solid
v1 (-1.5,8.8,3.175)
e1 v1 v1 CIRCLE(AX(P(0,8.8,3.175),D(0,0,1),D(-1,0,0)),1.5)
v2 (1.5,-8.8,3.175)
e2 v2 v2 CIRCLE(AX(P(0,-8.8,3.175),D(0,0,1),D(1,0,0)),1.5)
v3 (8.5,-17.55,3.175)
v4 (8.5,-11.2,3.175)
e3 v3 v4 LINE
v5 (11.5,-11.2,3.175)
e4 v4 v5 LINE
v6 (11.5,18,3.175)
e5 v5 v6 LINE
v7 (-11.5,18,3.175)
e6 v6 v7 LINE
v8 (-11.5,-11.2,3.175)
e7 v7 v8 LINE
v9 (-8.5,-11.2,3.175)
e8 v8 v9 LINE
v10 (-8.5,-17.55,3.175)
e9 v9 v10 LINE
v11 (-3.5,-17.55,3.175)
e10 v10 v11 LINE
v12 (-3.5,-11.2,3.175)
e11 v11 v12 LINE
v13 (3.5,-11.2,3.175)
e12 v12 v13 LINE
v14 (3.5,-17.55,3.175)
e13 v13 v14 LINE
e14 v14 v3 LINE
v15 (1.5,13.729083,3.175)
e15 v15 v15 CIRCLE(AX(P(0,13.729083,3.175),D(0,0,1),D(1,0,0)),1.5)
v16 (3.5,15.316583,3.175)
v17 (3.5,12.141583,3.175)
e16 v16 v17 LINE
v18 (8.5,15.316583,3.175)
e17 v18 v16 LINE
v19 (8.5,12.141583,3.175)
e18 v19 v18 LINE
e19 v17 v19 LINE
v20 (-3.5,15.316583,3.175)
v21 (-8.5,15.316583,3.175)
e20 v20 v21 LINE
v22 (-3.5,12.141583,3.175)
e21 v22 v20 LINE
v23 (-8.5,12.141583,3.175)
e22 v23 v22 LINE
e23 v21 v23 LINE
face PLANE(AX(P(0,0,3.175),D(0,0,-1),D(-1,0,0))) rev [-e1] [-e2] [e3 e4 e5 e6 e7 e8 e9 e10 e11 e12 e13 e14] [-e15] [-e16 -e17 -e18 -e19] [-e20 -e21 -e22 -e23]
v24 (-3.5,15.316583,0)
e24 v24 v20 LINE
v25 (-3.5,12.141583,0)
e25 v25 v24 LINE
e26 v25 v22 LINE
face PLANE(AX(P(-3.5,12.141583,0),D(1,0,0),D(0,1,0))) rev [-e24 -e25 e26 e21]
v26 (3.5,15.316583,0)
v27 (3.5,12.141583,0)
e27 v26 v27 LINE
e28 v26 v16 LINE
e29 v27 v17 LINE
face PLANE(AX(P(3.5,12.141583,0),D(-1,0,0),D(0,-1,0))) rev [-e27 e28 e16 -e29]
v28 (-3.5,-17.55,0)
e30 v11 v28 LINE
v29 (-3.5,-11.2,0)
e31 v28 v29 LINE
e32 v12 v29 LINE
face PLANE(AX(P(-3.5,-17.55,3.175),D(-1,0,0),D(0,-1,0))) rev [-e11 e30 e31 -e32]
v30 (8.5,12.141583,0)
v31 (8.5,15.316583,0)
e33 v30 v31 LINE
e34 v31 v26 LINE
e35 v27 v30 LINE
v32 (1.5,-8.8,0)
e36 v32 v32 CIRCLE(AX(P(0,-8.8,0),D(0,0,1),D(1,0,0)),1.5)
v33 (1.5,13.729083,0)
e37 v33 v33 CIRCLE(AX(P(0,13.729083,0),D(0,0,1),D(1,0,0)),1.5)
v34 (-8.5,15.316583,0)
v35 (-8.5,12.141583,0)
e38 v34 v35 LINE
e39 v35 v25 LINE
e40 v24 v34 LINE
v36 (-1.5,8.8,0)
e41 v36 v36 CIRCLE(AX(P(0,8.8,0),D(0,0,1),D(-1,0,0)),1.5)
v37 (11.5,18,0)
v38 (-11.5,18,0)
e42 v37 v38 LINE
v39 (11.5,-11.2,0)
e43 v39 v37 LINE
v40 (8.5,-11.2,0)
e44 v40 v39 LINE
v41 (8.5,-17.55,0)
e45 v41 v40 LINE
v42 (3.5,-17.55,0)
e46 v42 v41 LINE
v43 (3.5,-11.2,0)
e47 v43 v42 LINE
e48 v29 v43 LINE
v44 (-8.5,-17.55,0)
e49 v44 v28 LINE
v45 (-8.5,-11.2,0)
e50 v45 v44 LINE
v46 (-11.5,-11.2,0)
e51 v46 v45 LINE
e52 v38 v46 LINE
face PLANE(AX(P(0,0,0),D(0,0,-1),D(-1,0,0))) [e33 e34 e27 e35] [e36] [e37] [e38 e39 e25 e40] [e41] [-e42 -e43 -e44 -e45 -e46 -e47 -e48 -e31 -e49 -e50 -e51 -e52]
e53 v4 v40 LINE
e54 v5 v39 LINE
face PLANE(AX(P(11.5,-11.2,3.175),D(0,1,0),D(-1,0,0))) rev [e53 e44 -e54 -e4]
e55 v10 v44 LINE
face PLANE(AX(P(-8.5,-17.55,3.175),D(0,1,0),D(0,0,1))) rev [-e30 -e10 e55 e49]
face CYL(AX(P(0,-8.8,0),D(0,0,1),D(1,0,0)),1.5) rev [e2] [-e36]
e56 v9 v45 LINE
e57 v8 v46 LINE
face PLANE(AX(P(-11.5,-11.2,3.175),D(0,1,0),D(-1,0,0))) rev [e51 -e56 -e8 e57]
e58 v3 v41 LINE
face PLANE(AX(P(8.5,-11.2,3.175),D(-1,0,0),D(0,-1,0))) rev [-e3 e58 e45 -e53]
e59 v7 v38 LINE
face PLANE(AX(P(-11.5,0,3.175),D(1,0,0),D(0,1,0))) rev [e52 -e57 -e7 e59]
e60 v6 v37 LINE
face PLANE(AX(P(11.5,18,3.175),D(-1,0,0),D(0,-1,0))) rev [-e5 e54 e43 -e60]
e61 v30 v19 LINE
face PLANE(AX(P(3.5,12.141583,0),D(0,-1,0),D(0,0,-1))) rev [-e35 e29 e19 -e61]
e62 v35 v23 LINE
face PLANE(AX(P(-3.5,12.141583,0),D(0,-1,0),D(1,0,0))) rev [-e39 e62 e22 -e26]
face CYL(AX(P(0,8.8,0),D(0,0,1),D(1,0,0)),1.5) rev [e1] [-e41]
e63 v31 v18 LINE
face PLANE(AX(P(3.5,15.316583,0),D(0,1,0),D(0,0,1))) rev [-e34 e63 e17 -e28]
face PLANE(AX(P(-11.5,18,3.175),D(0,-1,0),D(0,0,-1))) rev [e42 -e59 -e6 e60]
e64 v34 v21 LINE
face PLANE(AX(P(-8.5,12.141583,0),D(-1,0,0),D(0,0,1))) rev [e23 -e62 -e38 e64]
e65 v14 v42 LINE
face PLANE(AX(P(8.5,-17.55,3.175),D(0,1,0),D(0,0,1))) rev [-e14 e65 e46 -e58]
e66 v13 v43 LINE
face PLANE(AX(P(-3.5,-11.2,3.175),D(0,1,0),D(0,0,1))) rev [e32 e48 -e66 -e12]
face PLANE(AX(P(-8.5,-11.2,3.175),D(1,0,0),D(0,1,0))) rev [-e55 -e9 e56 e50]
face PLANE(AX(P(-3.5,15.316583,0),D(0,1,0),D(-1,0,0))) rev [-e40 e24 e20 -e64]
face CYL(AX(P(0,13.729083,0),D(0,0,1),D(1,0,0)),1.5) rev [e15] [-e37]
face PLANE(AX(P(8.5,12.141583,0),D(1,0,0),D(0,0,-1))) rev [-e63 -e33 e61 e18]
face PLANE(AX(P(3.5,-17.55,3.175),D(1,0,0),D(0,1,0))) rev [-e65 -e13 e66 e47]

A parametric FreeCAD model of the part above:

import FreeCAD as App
import Part
import Sketcher

V = App.Vector
Q = App.Units.Quantity

doc = App.newDocument("Part")
body = doc.addObject("PartDesign::Body", "Body")

sketch1 = body.newObject("Sketcher::SketchObject", "Sketch")
sketch1.AttachmentSupport = (doc.getObject("XY_Plane"), [""])
sketch1.MapMode = "FlatFace"
sketch1.addGeometry(Part.LineSegment(V(-11.5, -11.2, 0), V(-8.5, -11.2, 0)), False)
sketch1.addGeometry(Part.LineSegment(V(-8.5, -11.2, 0), V(-8.5, -17.55, 0)), False)
sketch1.addGeometry(Part.LineSegment(V(-8.5, -17.55, 0), V(-3.5, -17.55, 0)), False)
sketch1.addGeometry(Part.LineSegment(V(-3.5, -17.55, 0), V(-3.5, -11.2, 0)), False)
sketch1.addGeometry(Part.LineSegment(V(-3.5, -11.2, 0), V(3.5, -11.2, 0)), False)
sketch1.addGeometry(Part.LineSegment(V(3.5, -11.2, 0), V(3.5, -17.55, 0)), False)
sketch1.addGeometry(Part.LineSegment(V(3.5, -17.55, 0), V(8.5, -17.55, 0)), False)
sketch1.addGeometry(Part.LineSegment(V(8.5, -17.55, 0), V(8.5, -11.2, 0)), False)
sketch1.addGeometry(Part.LineSegment(V(8.5, -11.2, 0), V(11.5, -11.2, 0)), False)
sketch1.addGeometry(Part.LineSegment(V(11.5, -11.2, 0), V(11.5, 18, 0)), False)
sketch1.addGeometry(Part.LineSegment(V(11.5, 18, 0), V(-11.5, 18, 0)), False)
sketch1.addGeometry(Part.LineSegment(V(-11.5, 18, 0), V(-11.5, -11.2, 0)), False)
sketch1.addConstraint(Sketcher.Constraint("Coincident", 0, 2, 1, 1))
sketch1.addConstraint(Sketcher.Constraint("Coincident", 1, 2, 2, 1))
sketch1.addConstraint(Sketcher.Constraint("Coincident", 2, 2, 3, 1))
sketch1.addConstraint(Sketcher.Constraint("Coincident", 3, 2, 4, 1))
sketch1.addConstraint(Sketcher.Constraint("Coincident", 4, 2, 5, 1))
sketch1.addConstraint(Sketcher.Constraint("Coincident", 5, 2, 6, 1))
sketch1.addConstraint(Sketcher.Constraint("Coincident", 6, 2, 7, 1))
sketch1.addConstraint(Sketcher.Constraint("Coincident", 7, 2, 8, 1))
sketch1.addConstraint(Sketcher.Constraint("Coincident", 8, 2, 9, 1))
sketch1.addConstraint(Sketcher.Constraint("Coincident", 9, 2, 10, 1))
sketch1.addConstraint(Sketcher.Constraint("Coincident", 10, 2, 11, 1))
sketch1.addConstraint(Sketcher.Constraint("Coincident", 11, 2, 0, 1))
sketch1.addConstraint(Sketcher.Constraint("Horizontal", 0))
sketch1.addConstraint(Sketcher.Constraint("Vertical", 1))
sketch1.addConstraint(Sketcher.Constraint("Horizontal", 2))
sketch1.addConstraint(Sketcher.Constraint("Vertical", 3))
sketch1.addConstraint(Sketcher.Constraint("Horizontal", 4))
sketch1.addConstraint(Sketcher.Constraint("Vertical", 5))
sketch1.addConstraint(Sketcher.Constraint("Horizontal", 6))
sketch1.addConstraint(Sketcher.Constraint("Vertical", 7))
sketch1.addConstraint(Sketcher.Constraint("Horizontal", 8))
sketch1.addConstraint(Sketcher.Constraint("Vertical", 9))
sketch1.addConstraint(Sketcher.Constraint("Horizontal", 10))
sketch1.addConstraint(Sketcher.Constraint("Vertical", 11))
sketch1.addConstraint(Sketcher.Constraint("Symmetric", 2, 2, 5, 2, -2))
sketch1.addConstraint(Sketcher.Constraint("Symmetric", 0, 2, 7, 2, -2))
sketch1.addConstraint(Sketcher.Constraint("Horizontal", 0, 2, 3, 2))
sketch1.addConstraint(Sketcher.Constraint("Equal", 0, 8))
sketch1.addConstraint(Sketcher.Constraint("DistanceX", 0, 1, 0, 2, Q("3 mm")))
sketch1.addConstraint(Sketcher.Constraint("DistanceX", 2, 1, 2, 2, Q("5 mm")))
sketch1.addConstraint(Sketcher.Constraint("DistanceX", 4, 1, 4, 2, Q("7 mm")))
sketch1.addConstraint(Sketcher.Constraint("DistanceY", 9, 1, 9, 2, Q("29.2 mm")))
sketch1.addConstraint(Sketcher.Constraint("DistanceY", -1, 1, 9, 2, Q("18 mm")))
sketch1.addConstraint(Sketcher.Constraint("DistanceY", 1, 2, 1, 1, Q("6.35 mm")))
pad1 = body.newObject("PartDesign::Pad", "Pad")
pad1.Profile = sketch1
pad1.Length = 3.175

sketch2 = body.newObject("Sketcher::SketchObject", "Sketch001")
sketch2.AttachmentSupport = (doc.getObject("XY_Plane"), [""])
sketch2.MapMode = "FlatFace"
sketch2.AttachmentOffset = App.Placement(V(0, 0, 3.175), App.Rotation())
sketch2.addGeometry(Part.Circle(V(0, -8.8, 0), V(0, 0, 1), 1.5), False)
sketch2.addGeometry(Part.Circle(V(0, 8.8, 0), V(0, 0, 1), 1.5), False)
sketch2.addConstraint(Sketcher.Constraint("Equal", 0, 1))
sketch2.addConstraint(Sketcher.Constraint("Symmetric", 0, 3, 1, 3, -1, 1))
sketch2.addConstraint(Sketcher.Constraint("PointOnObject", 0, 3, -2))
sketch2.addConstraint(Sketcher.Constraint("Diameter", 0, Q("3 mm")))
sketch2.addConstraint(Sketcher.Constraint("DistanceY", 0, 3, -1, 1, Q("8.8 mm")))
pocket1 = body.newObject("PartDesign::Pocket", "Pocket")
pocket1.Profile = sketch2
pocket1.Type = "ThroughAll"

sketch3 = body.newObject("Sketcher::SketchObject", "Sketch002")
sketch3.AttachmentSupport = (doc.getObject("XY_Plane"), [""])
sketch3.MapMode = "FlatFace"
sketch3.AttachmentOffset = App.Placement(V(0, 0, 3.175), App.Rotation())
sketch3.addGeometry(Part.Circle(V(0, 13.729083, 0), V(0, 0, 1), 1.5), False)
sketch3.addGeometry(Part.LineSegment(V(3.5, 15.316583, 0), V(3.5, 12.141583, 0)), False)
sketch3.addGeometry(Part.LineSegment(V(3.5, 12.141583, 0), V(8.5, 12.141583, 0)), False)
sketch3.addGeometry(Part.LineSegment(V(8.5, 12.141583, 0), V(8.5, 15.316583, 0)), False)
sketch3.addGeometry(Part.LineSegment(V(8.5, 15.316583, 0), V(3.5, 15.316583, 0)), False)
sketch3.addGeometry(Part.LineSegment(V(-8.5, 15.316583, 0), V(-8.5, 12.141583, 0)), False)
sketch3.addGeometry(Part.LineSegment(V(-8.5, 12.141583, 0), V(-3.5, 12.141583, 0)), False)
sketch3.addGeometry(Part.LineSegment(V(-3.5, 12.141583, 0), V(-3.5, 15.316583, 0)), False)
sketch3.addGeometry(Part.LineSegment(V(-3.5, 15.316583, 0), V(-8.5, 15.316583, 0)), False)
sketch3.addConstraint(Sketcher.Constraint("Coincident", 1, 2, 2, 1))
sketch3.addConstraint(Sketcher.Constraint("Coincident", 2, 2, 3, 1))
sketch3.addConstraint(Sketcher.Constraint("Coincident", 3, 2, 4, 1))
sketch3.addConstraint(Sketcher.Constraint("Coincident", 4, 2, 1, 1))
sketch3.addConstraint(Sketcher.Constraint("Coincident", 5, 2, 6, 1))
sketch3.addConstraint(Sketcher.Constraint("Coincident", 6, 2, 7, 1))
sketch3.addConstraint(Sketcher.Constraint("Coincident", 7, 2, 8, 1))
sketch3.addConstraint(Sketcher.Constraint("Coincident", 8, 2, 5, 1))
sketch3.addConstraint(Sketcher.Constraint("Vertical", 1))
sketch3.addConstraint(Sketcher.Constraint("Horizontal", 2))
sketch3.addConstraint(Sketcher.Constraint("Vertical", 3))
sketch3.addConstraint(Sketcher.Constraint("Horizontal", 4))
sketch3.addConstraint(Sketcher.Constraint("Vertical", 5))
sketch3.addConstraint(Sketcher.Constraint("Horizontal", 6))
sketch3.addConstraint(Sketcher.Constraint("Vertical", 7))
sketch3.addConstraint(Sketcher.Constraint("Horizontal", 8))
sketch3.addConstraint(Sketcher.Constraint("Symmetric", 2, 2, 5, 2, -2))
sketch3.addConstraint(Sketcher.Constraint("Symmetric", 4, 2, 7, 2, -2))
sketch3.addConstraint(Sketcher.Constraint("PointOnObject", 0, 3, -2))
sketch3.addConstraint(Sketcher.Constraint("Diameter", 0, Q("3 mm")))
sketch3.addConstraint(Sketcher.Constraint("DistanceX", 2, 1, 2, 2, Q("5 mm")))
sketch3.addConstraint(Sketcher.Constraint("DistanceX", 5, 2, 1, 2, Q("12 mm")))
sketch3.addConstraint(Sketcher.Constraint("DistanceY", 1, 2, 1, 1, Q("3.175 mm")))
sketch3.addConstraint(Sketcher.Constraint("DistanceY", 1, 2, 0, 3, Q("1.5875 mm")))
sketch3.addConstraint(Sketcher.Constraint("DistanceY", -1, 1, 0, 3, Q("13.729083 mm")))
pocket2 = body.newObject("PartDesign::Pocket", "Pocket001")
pocket2.Profile = sketch3
pocket2.Type = "ThroughAll"

doc.recompute()
